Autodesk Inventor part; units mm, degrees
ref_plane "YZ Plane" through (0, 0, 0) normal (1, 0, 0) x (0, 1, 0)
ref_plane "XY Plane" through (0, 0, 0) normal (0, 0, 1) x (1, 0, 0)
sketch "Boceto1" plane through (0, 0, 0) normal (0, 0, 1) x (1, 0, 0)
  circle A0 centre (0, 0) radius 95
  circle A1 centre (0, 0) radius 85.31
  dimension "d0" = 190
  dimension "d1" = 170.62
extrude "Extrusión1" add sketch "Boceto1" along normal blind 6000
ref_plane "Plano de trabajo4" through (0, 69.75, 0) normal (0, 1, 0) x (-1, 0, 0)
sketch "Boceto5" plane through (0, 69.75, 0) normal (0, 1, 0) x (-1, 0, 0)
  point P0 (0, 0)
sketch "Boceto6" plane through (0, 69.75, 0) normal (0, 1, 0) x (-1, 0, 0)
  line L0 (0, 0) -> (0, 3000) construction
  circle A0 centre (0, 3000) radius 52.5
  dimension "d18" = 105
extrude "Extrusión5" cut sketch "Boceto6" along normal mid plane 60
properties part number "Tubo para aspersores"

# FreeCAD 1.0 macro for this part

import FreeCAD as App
import Part
import Sketcher

doc = App.newDocument("Part")
body = doc.addObject("PartDesign::Body", "Body")

sketch1 = body.newObject("Sketcher::SketchObject", "Sketch")
sketch1.AttachmentSupport = (doc.getObject("XY_Plane"), [""])
sketch1.MapMode = "FlatFace"
sketch1.addGeometry([
    Part.Circle(App.Vector(0, 0, 0), App.Vector(0, 0, 1), 95),
    Part.Circle(App.Vector(0, 0, 0), App.Vector(0, 0, 1), 85),
], False)
sketch1.addConstraint([
    Sketcher.Constraint("Coincident", 0, 3, -1, 1),
    Sketcher.Constraint("Coincident", 1, 3, -1, 1),
    Sketcher.Constraint("Diameter", 0, 190.0),
    Sketcher.Constraint("Diameter", 1, 170.62),
])
pad1 = body.newObject("PartDesign::Pad", "Pad")
pad1.Profile = sketch1
pad1.Length = 6000

sketch2 = body.newObject("Sketcher::SketchObject", "Sketch001")
sketch2.AttachmentSupport = (doc.getObject("XZ_Plane"), [""])
sketch2.MapMode = "FlatFace"
sketch2.AttachmentOffset = App.Placement(App.Vector(0, 0, -69.75), App.Rotation())
sketch2.addGeometry(Part.Circle(App.Vector(0, 3000, 0), App.Vector(0, 0, 1), 52), False)
sketch2.addConstraint([
    Sketcher.Constraint("PointOnObject", 0, 3, -2),
    Sketcher.Constraint("Diameter", 0, 105.0),
    Sketcher.Constraint("DistanceY", -1, 1, 0, 3, 3000.0),
])
pocket1 = body.newObject("PartDesign::Pocket", "Pocket")
pocket1.Profile = sketch2
pocket1.Length = 60
pocket1.Midplane = True

doc.recompute()
